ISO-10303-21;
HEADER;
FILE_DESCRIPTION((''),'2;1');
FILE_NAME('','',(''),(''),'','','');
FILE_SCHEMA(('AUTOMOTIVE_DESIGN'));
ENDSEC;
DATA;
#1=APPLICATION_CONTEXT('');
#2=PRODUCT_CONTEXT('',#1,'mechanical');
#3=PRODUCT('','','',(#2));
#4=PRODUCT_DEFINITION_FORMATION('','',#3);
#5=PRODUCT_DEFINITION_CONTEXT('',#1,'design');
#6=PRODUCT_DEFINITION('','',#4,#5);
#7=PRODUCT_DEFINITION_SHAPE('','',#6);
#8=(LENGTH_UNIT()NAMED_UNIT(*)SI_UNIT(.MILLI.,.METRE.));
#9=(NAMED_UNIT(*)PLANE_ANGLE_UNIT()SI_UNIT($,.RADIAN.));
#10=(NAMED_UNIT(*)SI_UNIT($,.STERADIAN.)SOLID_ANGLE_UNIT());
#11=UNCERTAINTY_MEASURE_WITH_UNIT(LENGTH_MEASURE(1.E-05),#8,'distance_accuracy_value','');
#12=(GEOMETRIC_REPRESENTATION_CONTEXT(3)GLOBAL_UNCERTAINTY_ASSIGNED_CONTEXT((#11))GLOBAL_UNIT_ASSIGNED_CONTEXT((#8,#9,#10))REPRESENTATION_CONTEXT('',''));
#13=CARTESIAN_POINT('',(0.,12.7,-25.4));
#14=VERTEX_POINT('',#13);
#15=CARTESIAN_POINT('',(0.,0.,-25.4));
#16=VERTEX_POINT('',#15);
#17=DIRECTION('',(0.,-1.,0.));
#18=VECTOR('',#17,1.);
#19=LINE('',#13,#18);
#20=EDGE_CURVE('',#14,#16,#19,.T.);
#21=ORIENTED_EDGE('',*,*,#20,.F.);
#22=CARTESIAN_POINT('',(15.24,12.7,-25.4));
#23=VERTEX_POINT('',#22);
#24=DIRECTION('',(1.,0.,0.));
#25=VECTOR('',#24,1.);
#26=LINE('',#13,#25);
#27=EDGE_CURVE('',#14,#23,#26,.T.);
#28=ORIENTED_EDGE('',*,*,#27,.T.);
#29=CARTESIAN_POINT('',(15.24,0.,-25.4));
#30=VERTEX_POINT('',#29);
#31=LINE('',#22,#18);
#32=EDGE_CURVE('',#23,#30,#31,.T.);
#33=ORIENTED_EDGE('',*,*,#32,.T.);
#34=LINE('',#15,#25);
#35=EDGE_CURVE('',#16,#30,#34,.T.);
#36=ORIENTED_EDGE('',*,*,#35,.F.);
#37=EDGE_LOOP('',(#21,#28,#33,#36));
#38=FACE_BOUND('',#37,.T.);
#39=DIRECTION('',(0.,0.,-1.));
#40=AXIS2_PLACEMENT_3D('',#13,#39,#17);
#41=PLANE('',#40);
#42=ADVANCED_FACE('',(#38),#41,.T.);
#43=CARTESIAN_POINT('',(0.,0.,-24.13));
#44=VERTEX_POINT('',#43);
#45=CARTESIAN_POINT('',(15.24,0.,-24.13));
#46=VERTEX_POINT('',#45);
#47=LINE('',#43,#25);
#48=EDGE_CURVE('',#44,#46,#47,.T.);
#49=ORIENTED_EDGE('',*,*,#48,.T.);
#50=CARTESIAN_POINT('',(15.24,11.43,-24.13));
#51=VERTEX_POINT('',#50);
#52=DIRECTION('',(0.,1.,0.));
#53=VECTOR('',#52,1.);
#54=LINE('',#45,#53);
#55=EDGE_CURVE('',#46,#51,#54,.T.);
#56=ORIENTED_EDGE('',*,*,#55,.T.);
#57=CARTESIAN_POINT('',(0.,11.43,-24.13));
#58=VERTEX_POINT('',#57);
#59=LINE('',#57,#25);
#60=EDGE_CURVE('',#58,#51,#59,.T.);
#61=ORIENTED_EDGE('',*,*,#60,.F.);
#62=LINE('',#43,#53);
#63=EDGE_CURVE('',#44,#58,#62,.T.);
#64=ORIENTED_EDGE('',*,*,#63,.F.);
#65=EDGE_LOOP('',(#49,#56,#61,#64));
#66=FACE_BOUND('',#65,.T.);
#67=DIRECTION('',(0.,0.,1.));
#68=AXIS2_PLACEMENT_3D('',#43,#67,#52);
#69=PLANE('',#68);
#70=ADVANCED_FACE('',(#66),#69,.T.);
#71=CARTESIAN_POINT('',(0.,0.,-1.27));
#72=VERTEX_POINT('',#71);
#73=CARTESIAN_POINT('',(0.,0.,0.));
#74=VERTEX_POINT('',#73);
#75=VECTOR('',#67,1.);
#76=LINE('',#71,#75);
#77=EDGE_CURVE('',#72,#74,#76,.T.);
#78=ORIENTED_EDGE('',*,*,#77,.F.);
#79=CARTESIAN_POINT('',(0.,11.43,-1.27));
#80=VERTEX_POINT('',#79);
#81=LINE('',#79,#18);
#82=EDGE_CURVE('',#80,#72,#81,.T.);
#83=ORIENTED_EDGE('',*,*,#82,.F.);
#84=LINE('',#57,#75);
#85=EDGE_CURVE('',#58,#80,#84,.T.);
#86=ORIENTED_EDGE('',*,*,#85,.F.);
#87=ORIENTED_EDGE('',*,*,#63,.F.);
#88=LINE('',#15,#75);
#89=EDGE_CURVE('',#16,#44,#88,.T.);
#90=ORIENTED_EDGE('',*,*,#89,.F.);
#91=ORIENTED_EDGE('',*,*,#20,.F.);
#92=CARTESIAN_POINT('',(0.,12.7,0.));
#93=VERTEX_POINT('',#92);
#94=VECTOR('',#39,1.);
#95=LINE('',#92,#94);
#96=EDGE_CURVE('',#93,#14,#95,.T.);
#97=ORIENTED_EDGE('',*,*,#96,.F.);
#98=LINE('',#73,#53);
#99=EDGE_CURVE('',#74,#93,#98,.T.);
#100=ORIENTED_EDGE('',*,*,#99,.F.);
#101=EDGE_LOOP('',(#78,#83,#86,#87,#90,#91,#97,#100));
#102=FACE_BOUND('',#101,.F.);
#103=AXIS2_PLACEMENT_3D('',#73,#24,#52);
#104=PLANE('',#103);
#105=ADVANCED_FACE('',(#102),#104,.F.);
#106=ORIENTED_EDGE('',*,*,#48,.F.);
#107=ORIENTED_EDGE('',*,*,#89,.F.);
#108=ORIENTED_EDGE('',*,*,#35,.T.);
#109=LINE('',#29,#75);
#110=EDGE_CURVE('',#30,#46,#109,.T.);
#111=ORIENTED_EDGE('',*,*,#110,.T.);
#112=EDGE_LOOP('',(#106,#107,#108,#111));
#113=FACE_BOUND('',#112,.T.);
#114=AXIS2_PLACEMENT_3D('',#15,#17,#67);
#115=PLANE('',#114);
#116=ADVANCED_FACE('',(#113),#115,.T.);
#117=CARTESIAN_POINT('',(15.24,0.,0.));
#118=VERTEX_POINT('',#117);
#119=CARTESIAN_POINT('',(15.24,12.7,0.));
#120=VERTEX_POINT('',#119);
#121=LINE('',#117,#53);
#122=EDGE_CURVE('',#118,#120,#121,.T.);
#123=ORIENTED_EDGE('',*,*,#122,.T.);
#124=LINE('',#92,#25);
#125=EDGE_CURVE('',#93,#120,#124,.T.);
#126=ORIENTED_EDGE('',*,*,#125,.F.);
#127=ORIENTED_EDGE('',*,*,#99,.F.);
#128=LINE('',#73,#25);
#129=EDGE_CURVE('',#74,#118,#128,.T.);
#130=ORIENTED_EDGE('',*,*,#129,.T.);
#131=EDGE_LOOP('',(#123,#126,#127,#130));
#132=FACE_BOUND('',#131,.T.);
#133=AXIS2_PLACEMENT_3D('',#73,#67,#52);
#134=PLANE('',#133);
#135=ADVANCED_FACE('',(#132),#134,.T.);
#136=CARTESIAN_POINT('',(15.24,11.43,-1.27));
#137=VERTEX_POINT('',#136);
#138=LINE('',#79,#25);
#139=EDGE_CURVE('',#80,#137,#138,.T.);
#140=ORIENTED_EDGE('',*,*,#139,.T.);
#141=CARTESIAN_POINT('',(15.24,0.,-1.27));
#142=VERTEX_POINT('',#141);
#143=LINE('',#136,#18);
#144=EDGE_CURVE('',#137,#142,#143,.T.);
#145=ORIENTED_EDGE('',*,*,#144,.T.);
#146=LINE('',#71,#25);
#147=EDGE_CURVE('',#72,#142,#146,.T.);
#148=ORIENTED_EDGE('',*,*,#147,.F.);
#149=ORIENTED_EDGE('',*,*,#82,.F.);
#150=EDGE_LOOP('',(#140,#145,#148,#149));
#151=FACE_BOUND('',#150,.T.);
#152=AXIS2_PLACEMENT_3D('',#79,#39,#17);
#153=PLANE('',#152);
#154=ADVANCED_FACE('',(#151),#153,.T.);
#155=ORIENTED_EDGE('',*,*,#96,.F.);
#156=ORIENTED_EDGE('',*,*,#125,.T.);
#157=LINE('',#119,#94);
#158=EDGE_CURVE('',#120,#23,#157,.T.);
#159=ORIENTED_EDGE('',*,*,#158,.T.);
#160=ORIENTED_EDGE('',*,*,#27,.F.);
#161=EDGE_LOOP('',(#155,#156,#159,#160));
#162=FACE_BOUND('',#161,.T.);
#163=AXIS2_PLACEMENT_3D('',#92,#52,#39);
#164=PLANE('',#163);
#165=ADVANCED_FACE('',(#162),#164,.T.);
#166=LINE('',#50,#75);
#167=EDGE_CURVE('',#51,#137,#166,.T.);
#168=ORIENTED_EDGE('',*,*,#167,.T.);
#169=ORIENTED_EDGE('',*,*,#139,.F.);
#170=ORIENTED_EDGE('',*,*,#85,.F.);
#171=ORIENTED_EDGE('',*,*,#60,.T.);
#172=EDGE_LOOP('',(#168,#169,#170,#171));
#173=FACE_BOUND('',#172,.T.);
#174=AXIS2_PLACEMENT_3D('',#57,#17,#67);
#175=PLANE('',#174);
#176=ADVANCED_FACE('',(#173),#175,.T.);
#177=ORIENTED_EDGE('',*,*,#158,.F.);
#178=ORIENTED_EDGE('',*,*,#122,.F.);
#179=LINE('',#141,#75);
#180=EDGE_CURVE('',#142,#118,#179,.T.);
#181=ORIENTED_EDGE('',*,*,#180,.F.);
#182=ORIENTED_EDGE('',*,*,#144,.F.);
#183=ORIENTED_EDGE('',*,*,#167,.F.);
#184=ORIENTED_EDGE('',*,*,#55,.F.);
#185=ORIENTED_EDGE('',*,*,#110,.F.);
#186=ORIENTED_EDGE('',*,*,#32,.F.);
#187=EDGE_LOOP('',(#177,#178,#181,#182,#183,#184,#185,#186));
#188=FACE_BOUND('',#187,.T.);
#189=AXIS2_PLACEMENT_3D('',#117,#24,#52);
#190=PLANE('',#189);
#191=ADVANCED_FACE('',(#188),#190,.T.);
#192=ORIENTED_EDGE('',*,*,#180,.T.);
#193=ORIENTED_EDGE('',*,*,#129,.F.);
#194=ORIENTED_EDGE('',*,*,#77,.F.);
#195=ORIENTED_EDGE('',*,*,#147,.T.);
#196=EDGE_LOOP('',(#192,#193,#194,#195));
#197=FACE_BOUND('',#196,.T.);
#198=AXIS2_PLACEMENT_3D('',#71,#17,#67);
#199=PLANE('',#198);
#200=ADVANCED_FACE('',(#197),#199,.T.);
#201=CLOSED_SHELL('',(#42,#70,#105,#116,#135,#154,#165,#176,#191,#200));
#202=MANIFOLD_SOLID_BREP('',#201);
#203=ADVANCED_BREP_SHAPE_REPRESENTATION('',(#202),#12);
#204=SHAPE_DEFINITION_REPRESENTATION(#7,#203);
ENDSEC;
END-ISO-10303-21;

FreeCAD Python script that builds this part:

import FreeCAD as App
import Part
import Sketcher
from FreeCAD import Vector
Q = App.Units.Quantity

doc = App.newDocument("Part")
params = doc.addObject("Spreadsheet::Sheet", "Params")
for row, (alias, value) in enumerate([
    ("sketch1_height", "1 in"),
    ("sketch1_width", "0.5 in"),
    ("sketch1_height2", "0.05 in"),
    ("pad1_length", "0.6 in"),
], start=1):
    params.set(f"A{row}", alias)
    params.set(f"B{row}", "=" + value)
    params.setAlias(f"B{row}", alias)

body = doc.addObject("PartDesign::Body", "Body")

# Sketch on YZ plane
sketch1 = doc.addObject("Sketcher::SketchObject", "Sketch")
body.addObject(sketch1)
sketch1.AttachmentSupport = (doc.YZ_Plane, [""])
sketch1.MapMode = "FlatFace"
sketch1.addGeometry([
    Part.LineSegment(Vector(12.7, 0, 0), Vector(0, 0, 0)),  # 0
    Part.LineSegment(Vector(0, 0, 0), Vector(0, -1.27, 0)),  # 1
    Part.LineSegment(Vector(0, -1.27, 0), Vector(11.43, -1.27, 0)),  # 2
    Part.LineSegment(Vector(11.43, -1.27, 0), Vector(11.43, -24.13, 0)),  # 3
    Part.LineSegment(Vector(11.43, -24.13, 0), Vector(0, -24.13, 0)),  # 4
    Part.LineSegment(Vector(0, -24.13, 0), Vector(0, -25.4, 0)),  # 5
    Part.LineSegment(Vector(0, -25.4, 0), Vector(12.7, -25.4, 0)),  # 6
    Part.LineSegment(Vector(12.7, -25.4, 0), Vector(12.7, 0, 0)),  # 7
], False)
sketch1.addConstraint([
    Sketcher.Constraint("Coincident", 0, 2, 1, 1),
    Sketcher.Constraint("Coincident", 1, 2, 2, 1),
    Sketcher.Constraint("Coincident", 2, 2, 3, 1),
    Sketcher.Constraint("Coincident", 3, 2, 4, 1),
    Sketcher.Constraint("Coincident", 4, 2, 5, 1),
    Sketcher.Constraint("Coincident", 5, 2, 6, 1),
    Sketcher.Constraint("Coincident", 6, 2, 7, 1),
    Sketcher.Constraint("Coincident", 7, 2, 0, 1),
    Sketcher.Constraint("Horizontal", 0),
    Sketcher.Constraint("Vertical", 1),
    Sketcher.Constraint("Horizontal", 2),
    Sketcher.Constraint("Vertical", 3),
    Sketcher.Constraint("Horizontal", 4),
    Sketcher.Constraint("Vertical", 5),
    Sketcher.Constraint("Horizontal", 6),
    Sketcher.Constraint("Vertical", 7),
    Sketcher.Constraint("Coincident", 0, 2, -1, 1),
    Sketcher.Constraint("PointOnObject", 4, 2, -2),
    Sketcher.Constraint("Equal", 1, 5),
    Sketcher.Constraint("DistanceY", 7, 1, 7, 2, Q("1 in")),
    Sketcher.Constraint("DistanceX", 0, 2, 0, 1, Q("0.5 in")),
    Sketcher.Constraint("DistanceY", 1, 2, 1, 1, Q("0.05 in")),
    Sketcher.Constraint("DistanceX", 3, 2, 6, 2, Q("0.05 in")),
])
sketch1.setExpression("Constraints[19]", "Params.sketch1_height")
sketch1.setExpression("Constraints[20]", "Params.sketch1_width")
sketch1.setExpression("Constraints[21]", "Params.sketch1_height2")
pad1 = doc.addObject("PartDesign::Pad", "Pad")
body.addObject(pad1)
pad1.Profile = sketch1
pad1.setExpression("Length", "Params.pad1_length")

doc.recompute()
